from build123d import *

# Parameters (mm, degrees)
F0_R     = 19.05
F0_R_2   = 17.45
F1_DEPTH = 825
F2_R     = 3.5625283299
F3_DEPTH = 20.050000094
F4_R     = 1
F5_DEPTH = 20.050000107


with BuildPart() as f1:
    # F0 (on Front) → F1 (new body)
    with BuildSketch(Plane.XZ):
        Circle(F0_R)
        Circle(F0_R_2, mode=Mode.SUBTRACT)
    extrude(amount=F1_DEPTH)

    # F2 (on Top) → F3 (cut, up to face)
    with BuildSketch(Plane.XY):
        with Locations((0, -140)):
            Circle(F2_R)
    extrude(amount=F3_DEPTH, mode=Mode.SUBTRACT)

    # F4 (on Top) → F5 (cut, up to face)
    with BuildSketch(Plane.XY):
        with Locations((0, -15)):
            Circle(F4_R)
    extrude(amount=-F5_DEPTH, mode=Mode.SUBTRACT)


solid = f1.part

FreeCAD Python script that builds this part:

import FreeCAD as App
import Part
import Sketcher
from FreeCAD import Vector
Q = App.Units.Quantity

doc = App.newDocument("Part")
body = doc.addObject("PartDesign::Body", "Body")

sketch1 = doc.addObject("Sketcher::SketchObject", "Sketch")
body.addObject(sketch1)
sketch1.AttachmentSupport = (doc.XZ_Plane, [""])
sketch1.MapMode = "FlatFace"
sketch1.addGeometry([
    Part.Circle(Vector(0, 0, 0), Vector(0, 0, 1), 19),
    Part.Circle(Vector(0, 0, 0), Vector(0, 0, 1), 17),
], False)
sketch1.addConstraint([
    Sketcher.Constraint("Coincident", 0, 3, -1, 1),
    Sketcher.Constraint("Coincident", 1, 3, -1, 1),
    Sketcher.Constraint("Diameter", 0, Q("38.1 mm")),
    Sketcher.Constraint("Diameter", 1, Q("34.9 mm")),
])
pad1 = doc.addObject("PartDesign::Pad", "Pad")
body.addObject(pad1)
pad1.Profile = sketch1
pad1.Length = 825

sketch2 = doc.addObject("Sketcher::SketchObject", "Sketch001")
body.addObject(sketch2)
sketch2.AttachmentSupport = (doc.XY_Plane, [""])
sketch2.MapMode = "FlatFace"
sketch2.addGeometry(Part.Circle(Vector(0, -140, 0), Vector(0, 0, 1), 3.6), False)
sketch2.addConstraint([
    Sketcher.Constraint("PointOnObject", 0, 3, -2),
    Sketcher.Constraint("DistanceY", 0, 3, -1, 1, Q("140 mm")),
    Sketcher.Constraint("Diameter", 0, Q("7.125057 mm")),
])
pocket1 = doc.addObject("PartDesign::Pocket", "Pocket")
body.addObject(pocket1)
pocket1.Profile = sketch2
pocket1.Length = 20.05
pocket1.Reversed = True

sketch3 = doc.addObject("Sketcher::SketchObject", "Sketch002")
body.addObject(sketch3)
sketch3.AttachmentSupport = (doc.XY_Plane, [""])
sketch3.MapMode = "FlatFace"
sketch3.addGeometry(Part.Circle(Vector(0, -15, 0), Vector(0, 0, 1), 1), False)
sketch3.addConstraint([
    Sketcher.Constraint("PointOnObject", 0, 3, -2),
    Sketcher.Constraint("Diameter", 0, Q("2 mm")),
    Sketcher.Constraint("DistanceY", 0, 3, -1, 1, Q("15 mm")),
])
pocket2 = doc.addObject("PartDesign::Pocket", "Pocket001")
body.addObject(pocket2)
pocket2.Profile = sketch3
pocket2.Length = 20.05

doc.recompute()
